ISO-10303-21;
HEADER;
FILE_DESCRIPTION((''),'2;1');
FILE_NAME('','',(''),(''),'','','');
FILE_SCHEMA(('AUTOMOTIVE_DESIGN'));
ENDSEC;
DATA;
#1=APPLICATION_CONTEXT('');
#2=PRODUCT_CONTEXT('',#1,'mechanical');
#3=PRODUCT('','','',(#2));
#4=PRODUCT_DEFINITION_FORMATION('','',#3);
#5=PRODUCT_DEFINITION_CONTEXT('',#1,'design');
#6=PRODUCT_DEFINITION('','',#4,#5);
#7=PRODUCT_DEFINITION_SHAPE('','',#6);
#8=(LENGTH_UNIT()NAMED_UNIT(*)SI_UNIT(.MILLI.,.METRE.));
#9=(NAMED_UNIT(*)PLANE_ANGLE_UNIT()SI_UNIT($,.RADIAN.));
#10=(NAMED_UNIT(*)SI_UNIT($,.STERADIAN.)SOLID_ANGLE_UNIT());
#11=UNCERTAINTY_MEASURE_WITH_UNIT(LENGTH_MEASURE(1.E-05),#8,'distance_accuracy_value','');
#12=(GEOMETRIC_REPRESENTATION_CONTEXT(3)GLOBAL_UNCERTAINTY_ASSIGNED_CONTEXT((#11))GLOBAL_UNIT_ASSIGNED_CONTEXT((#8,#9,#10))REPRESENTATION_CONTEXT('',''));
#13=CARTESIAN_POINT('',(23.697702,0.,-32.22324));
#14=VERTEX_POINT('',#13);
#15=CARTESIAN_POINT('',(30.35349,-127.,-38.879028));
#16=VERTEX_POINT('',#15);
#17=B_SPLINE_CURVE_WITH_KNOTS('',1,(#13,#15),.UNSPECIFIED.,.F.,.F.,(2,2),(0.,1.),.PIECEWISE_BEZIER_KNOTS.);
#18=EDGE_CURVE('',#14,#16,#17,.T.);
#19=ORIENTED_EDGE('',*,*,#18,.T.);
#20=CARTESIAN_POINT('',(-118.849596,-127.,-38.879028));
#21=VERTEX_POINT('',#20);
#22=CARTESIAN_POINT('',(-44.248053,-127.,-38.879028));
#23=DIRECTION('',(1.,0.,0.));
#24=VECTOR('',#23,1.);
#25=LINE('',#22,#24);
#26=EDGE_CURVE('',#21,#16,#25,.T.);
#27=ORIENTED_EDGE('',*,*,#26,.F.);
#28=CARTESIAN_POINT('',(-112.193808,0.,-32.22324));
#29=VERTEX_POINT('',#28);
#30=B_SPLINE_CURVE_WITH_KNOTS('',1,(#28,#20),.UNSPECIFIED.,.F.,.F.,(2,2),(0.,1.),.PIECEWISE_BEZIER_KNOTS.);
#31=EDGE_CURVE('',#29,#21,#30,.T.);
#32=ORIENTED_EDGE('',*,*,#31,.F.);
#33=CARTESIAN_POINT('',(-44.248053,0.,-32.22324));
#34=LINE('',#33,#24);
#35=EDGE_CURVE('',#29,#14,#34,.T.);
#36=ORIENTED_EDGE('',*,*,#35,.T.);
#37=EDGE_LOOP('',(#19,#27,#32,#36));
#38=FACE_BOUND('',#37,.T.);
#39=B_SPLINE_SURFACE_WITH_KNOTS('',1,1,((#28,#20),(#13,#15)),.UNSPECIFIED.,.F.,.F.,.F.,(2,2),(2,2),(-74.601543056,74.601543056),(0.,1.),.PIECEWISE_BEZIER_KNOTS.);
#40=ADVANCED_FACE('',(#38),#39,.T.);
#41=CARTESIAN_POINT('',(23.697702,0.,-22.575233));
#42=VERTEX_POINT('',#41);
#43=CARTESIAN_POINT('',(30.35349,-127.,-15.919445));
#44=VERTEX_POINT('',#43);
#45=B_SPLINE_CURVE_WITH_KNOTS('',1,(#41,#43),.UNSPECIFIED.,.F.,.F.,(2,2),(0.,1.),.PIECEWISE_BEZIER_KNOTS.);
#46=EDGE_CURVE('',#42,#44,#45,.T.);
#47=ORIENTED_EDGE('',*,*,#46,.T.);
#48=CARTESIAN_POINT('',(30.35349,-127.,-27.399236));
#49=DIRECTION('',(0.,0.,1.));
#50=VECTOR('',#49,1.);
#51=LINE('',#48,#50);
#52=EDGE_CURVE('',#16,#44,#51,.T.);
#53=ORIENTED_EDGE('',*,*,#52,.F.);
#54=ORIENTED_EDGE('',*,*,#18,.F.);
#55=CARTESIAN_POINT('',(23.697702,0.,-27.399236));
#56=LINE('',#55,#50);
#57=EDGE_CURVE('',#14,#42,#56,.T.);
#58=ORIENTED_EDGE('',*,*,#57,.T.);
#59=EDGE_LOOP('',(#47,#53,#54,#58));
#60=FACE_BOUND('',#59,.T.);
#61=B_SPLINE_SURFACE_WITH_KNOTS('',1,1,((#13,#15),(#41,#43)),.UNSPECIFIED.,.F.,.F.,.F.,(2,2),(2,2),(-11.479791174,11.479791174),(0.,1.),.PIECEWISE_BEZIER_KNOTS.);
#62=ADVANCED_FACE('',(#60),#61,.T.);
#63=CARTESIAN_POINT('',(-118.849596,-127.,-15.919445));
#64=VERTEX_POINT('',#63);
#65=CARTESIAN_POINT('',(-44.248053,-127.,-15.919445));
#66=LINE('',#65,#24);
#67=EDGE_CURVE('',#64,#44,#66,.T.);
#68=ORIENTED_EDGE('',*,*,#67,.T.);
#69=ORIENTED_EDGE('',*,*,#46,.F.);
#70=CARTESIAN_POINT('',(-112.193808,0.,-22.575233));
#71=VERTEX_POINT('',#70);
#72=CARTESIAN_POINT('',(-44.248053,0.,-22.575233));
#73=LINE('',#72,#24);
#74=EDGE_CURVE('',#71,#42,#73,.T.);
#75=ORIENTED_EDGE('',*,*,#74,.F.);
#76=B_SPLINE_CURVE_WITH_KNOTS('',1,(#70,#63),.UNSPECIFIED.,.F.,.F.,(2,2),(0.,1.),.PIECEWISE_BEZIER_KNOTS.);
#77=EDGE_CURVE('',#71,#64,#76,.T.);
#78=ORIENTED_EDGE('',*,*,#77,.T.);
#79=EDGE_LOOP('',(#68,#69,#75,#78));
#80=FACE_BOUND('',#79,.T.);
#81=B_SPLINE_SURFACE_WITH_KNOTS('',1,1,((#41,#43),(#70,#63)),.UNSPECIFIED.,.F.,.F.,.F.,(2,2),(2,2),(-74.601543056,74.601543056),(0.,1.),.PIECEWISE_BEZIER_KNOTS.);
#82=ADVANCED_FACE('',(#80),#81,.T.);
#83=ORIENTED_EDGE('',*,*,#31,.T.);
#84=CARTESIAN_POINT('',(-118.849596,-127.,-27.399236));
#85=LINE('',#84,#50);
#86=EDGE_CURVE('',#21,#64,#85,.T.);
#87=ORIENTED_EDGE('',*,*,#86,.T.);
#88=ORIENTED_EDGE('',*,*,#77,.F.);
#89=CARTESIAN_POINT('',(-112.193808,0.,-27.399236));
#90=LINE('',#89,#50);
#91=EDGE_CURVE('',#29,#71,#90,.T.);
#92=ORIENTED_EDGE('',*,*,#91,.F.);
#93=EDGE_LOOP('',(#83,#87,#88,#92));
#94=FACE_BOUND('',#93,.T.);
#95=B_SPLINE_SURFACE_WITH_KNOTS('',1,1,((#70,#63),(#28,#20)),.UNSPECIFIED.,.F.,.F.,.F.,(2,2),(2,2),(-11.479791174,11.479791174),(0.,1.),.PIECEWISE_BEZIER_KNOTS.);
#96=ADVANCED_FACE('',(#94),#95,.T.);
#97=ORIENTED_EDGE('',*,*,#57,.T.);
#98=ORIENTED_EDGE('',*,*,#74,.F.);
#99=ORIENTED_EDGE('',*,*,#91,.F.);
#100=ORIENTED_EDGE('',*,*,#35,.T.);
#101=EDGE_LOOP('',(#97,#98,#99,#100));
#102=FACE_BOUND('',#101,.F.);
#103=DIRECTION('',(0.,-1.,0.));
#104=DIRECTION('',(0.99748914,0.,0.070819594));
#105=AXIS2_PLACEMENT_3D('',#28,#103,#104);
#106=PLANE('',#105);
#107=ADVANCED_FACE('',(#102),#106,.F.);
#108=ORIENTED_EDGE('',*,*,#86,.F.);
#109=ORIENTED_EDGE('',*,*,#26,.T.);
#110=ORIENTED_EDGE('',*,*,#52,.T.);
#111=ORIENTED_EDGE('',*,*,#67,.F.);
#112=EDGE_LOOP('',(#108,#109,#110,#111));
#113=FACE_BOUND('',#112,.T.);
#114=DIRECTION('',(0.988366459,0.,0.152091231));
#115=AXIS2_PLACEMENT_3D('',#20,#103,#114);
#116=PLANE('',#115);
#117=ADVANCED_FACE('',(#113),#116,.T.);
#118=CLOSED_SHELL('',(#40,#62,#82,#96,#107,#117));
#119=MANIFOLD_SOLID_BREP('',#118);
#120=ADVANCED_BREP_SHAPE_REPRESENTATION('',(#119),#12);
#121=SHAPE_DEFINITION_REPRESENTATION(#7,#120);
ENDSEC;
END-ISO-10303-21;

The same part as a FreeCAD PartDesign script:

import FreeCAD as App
import Part
import Sketcher

V = App.Vector
Q = App.Units.Quantity


def add_polygon(sketch, points):
    """Adds a closed chain of lines whose ends are joined by coincident constraints."""
    first, n = sketch.GeometryCount, len(points)
    for a, b in zip(points, points[1:] + points[:1]):
        sketch.addGeometry(Part.LineSegment(App.Vector(*a, 0), App.Vector(*b, 0)), False)
    for i in range(n):
        sketch.addConstraint(Sketcher.Constraint("Coincident", first + i, 2, first + (i + 1) % n, 1))

doc = App.newDocument("Part")
body = doc.addObject("PartDesign::Body", "Body")

# Sketch on XZ plane
sketch1 = doc.addObject("Sketcher::SketchObject", "Sketch")
body.addObject(sketch1)
sketch1.AttachmentSupport = (doc.XZ_Plane, [""])
sketch1.MapMode = "FlatFace"
add_polygon(sketch1, [(-112, -23), (-112, -32), (24, -32), (24, -23)])  # lines 0-3
sketch1.addConstraint(Sketcher.Constraint("Vertical", 0))
sketch1.addConstraint(Sketcher.Constraint("Horizontal", 1))
sketch1.addConstraint(Sketcher.Constraint("Vertical", 2))
sketch1.addConstraint(Sketcher.Constraint("Horizontal", 3))
sketch1.addConstraint(Sketcher.Constraint("DistanceX", 1, 1, 1, 2, 135.89151))
sketch1.addConstraint(Sketcher.Constraint("DistanceY", 0, 2, 0, 1, 9.648006))
sketch1.addConstraint(Sketcher.Constraint("DistanceY", 0, 2, -1, 1, 32.22324))
sketch1.addConstraint(Sketcher.Constraint("DistanceX", 0, 2, -1, 1, 112.193808))
pad1 = doc.addObject("PartDesign::Pad", "Pad")
body.addObject(pad1)
pad1.Profile = sketch1
pad1.Length = Q("5 in")
pad1.TaperAngle = 3

doc.recompute()
